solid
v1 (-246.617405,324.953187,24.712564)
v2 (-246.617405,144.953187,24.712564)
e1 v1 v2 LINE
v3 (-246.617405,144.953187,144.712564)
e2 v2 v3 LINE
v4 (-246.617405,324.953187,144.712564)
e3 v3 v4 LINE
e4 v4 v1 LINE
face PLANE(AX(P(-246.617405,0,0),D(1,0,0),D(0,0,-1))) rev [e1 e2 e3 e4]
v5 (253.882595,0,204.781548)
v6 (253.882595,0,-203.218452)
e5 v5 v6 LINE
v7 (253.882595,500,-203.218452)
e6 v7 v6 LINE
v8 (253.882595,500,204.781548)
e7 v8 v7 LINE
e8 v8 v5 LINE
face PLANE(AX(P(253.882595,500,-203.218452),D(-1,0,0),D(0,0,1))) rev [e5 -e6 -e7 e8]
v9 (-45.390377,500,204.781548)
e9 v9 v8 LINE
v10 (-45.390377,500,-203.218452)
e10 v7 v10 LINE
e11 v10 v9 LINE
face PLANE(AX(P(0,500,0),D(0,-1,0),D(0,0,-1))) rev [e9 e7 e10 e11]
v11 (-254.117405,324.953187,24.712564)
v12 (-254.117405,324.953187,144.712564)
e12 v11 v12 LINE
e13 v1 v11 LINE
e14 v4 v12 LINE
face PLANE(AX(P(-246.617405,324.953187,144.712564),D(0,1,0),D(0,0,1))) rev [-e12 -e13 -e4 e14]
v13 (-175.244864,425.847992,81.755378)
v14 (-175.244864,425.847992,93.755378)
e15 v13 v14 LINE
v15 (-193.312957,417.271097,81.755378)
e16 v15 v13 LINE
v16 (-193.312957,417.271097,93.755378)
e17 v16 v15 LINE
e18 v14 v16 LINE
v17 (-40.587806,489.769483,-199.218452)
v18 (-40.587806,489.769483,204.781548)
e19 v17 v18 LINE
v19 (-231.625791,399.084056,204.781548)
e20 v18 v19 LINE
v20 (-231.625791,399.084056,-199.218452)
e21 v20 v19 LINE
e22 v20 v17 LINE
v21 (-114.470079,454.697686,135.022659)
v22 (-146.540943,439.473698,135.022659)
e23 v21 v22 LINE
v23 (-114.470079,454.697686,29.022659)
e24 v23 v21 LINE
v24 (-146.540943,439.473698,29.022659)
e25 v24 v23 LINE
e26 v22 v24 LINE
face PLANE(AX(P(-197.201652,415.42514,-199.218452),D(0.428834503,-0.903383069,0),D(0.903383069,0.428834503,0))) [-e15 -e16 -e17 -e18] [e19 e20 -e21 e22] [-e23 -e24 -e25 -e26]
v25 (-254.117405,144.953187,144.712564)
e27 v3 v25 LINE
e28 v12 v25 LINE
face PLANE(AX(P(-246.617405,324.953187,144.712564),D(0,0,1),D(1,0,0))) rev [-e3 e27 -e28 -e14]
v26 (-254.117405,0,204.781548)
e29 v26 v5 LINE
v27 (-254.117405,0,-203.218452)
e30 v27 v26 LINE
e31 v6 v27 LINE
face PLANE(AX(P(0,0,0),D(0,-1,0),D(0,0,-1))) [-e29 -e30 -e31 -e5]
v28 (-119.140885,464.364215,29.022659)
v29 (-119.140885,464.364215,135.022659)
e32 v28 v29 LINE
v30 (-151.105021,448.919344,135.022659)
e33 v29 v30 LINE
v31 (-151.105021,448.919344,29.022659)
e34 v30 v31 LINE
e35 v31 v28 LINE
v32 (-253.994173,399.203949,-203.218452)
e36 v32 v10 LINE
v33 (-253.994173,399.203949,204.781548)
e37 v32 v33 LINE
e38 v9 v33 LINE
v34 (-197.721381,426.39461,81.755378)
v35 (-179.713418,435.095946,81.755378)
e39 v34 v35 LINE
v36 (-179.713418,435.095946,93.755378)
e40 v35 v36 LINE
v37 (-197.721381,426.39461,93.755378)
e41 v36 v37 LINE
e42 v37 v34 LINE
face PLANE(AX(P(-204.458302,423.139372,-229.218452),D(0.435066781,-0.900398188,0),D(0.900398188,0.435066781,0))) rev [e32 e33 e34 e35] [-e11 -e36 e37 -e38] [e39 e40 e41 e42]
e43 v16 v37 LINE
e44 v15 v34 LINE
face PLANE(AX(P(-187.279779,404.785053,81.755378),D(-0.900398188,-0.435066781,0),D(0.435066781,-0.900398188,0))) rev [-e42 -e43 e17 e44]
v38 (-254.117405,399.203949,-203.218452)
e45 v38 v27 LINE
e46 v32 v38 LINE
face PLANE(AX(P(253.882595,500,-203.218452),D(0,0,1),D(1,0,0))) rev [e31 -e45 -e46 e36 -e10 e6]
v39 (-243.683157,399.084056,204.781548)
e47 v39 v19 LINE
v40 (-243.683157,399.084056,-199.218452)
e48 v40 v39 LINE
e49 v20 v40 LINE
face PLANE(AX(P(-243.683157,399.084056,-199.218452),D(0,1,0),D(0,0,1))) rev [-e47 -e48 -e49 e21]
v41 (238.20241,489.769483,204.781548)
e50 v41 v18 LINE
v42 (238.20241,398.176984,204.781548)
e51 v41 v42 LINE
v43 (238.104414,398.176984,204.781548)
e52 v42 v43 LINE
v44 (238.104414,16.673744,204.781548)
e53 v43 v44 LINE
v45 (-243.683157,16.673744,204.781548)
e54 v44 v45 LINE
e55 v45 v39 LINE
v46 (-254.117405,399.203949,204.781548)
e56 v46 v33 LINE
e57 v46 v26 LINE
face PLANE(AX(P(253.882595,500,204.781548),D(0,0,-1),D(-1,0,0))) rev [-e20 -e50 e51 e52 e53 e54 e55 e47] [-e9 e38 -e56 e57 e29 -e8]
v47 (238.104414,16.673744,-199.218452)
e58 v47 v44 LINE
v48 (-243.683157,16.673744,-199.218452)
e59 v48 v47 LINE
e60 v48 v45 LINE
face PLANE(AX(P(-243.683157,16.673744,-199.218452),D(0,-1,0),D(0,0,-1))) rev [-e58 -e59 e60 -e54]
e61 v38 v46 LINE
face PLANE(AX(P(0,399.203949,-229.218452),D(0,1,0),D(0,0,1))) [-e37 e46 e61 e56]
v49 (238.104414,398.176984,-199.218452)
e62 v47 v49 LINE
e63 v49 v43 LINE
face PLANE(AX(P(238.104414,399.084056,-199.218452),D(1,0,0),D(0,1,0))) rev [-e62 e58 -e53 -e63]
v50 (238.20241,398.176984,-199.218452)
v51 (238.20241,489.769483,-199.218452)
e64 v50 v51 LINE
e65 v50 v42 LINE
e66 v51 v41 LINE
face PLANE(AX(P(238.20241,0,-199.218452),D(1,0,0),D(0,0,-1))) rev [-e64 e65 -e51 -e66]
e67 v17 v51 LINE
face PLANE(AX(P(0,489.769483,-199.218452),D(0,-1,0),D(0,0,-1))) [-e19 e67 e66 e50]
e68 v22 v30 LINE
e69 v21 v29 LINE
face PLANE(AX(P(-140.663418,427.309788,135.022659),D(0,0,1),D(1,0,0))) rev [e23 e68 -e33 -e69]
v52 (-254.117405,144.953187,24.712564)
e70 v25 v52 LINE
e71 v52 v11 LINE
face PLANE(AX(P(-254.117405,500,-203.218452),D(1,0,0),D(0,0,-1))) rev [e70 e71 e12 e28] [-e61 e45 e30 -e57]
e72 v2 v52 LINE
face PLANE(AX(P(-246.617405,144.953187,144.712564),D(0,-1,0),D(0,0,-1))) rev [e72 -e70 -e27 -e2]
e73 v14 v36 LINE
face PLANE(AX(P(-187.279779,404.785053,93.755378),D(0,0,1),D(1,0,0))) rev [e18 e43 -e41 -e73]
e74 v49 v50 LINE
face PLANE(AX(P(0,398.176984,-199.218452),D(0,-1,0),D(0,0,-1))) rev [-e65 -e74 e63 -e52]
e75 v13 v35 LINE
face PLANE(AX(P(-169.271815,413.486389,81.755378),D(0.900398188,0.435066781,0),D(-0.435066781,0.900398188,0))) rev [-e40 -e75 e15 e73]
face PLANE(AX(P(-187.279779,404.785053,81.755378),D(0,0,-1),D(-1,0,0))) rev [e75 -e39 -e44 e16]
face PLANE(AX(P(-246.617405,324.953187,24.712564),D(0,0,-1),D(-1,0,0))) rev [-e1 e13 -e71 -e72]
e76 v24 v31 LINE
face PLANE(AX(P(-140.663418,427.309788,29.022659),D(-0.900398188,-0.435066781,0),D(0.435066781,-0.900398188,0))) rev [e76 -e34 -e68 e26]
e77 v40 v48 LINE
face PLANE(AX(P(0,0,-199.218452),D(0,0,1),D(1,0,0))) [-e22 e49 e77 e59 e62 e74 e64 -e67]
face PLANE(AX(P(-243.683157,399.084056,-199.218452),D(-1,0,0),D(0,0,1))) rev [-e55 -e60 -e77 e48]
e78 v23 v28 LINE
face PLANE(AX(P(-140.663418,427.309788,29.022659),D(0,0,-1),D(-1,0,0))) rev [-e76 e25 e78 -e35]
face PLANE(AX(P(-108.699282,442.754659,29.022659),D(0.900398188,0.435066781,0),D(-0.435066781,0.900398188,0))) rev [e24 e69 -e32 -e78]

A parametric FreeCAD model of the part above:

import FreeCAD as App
import Part
import Sketcher
Q = App.Units.Quantity


def add_polygon(sketch, points):
    """Adds a closed chain of lines whose ends are joined by coincident constraints."""
    first, n = sketch.GeometryCount, len(points)
    for a, b in zip(points, points[1:] + points[:1]):
        sketch.addGeometry(Part.LineSegment(App.Vector(*a, 0), App.Vector(*b, 0)), False)
    for i in range(n):
        sketch.addConstraint(Sketcher.Constraint("Coincident", first + i, 2, first + (i + 1) % n, 1))

doc = App.newDocument("Part")
body = doc.addObject("PartDesign::Body", "Body")

sketch1 = doc.addObject("Sketcher::SketchObject", "Sketch")
body.addObject(sketch1)
sketch1.AttachmentSupport = (doc.XZ_Plane, [""])
sketch1.MapMode = "FlatFace"
add_polygon(sketch1, [(-254, -203), (-254, 205), (254, 205), (254, -203)])
add_polygon(sketch1, [(250, 201), (-250, 201), (-250, -199), (250, -199)])
sketch1.addConstraint([
    Sketcher.Constraint("Vertical", 0),
    Sketcher.Constraint("Horizontal", 1),
    Sketcher.Constraint("Vertical", 2),
    Sketcher.Constraint("Horizontal", 3),
    Sketcher.Constraint("Horizontal", 4),
    Sketcher.Constraint("Vertical", 5),
    Sketcher.Constraint("Horizontal", 6),
    Sketcher.Constraint("Vertical", 7),
    Sketcher.Constraint("DistanceX", 1, 1, 1, 2, Q("508 mm")),
    Sketcher.Constraint("DistanceX", 4, 2, 4, 1, Q("500 mm")),
    Sketcher.Constraint("DistanceY", 0, 1, 0, 2, Q("408 mm")),
    Sketcher.Constraint("DistanceY", 5, 2, 5, 1, Q("400 mm")),
    Sketcher.Constraint("DistanceX", 0, 2, 4, 2, Q("4 mm")),
    Sketcher.Constraint("DistanceY", 4, 2, 0, 2, Q("4 mm")),
    Sketcher.Constraint("DistanceX", 0, 2, -1, 1, Q("254.117405 mm")),
    Sketcher.Constraint("DistanceY", -1, 1, 0, 2, Q("204.781548 mm")),
])
pad1 = doc.addObject("PartDesign::Pad", "Pad")
body.addObject(pad1)
pad1.Profile = sketch1
pad1.Length = 500
pad1.Reversed = True

sketch2 = doc.addObject("Sketcher::SketchObject", "Sketch001")
body.addObject(sketch2)
sketch2.AttachmentSupport = (doc.XZ_Plane, [""])
sketch2.MapMode = "FlatFace"
add_polygon(sketch2, [(-250, -199), (-250, 201), (250, 201), (250, -199)])
sketch2.addConstraint([
    Sketcher.Constraint("Vertical", 0),
    Sketcher.Constraint("Horizontal", 1),
    Sketcher.Constraint("Vertical", 2),
    Sketcher.Constraint("Horizontal", 3),
    Sketcher.Constraint("DistanceX", 1, 1, 1, 2, Q("500 mm")),
    Sketcher.Constraint("DistanceY", 0, 1, 0, 2, Q("400 mm")),
    Sketcher.Constraint("DistanceX", 0, 2, -1, 1, Q("250.117405 mm")),
    Sketcher.Constraint("DistanceY", -1, 1, 0, 2, Q("200.781548 mm")),
])
pad2 = doc.addObject("PartDesign::Pad", "Pad001")
body.addObject(pad2)
pad2.Profile = sketch2
pad2.Length = 500
pad2.Reversed = True

sketch3 = doc.addObject("Sketcher::SketchObject", "Sketch002")
body.addObject(sketch3)
sketch3.AttachmentSupport = (doc.YZ_Plane, [""])
sketch3.MapMode = "FlatFace"
sketch3.AttachmentOffset = App.Placement(App.Vector(0, 0, -254.117405), App.Rotation())
add_polygon(sketch3, [(325, 25), (145, 25), (145, 145), (325, 145)])
sketch3.addConstraint([
    Sketcher.Constraint("Horizontal", 0),
    Sketcher.Constraint("Vertical", 1),
    Sketcher.Constraint("Horizontal", 2),
    Sketcher.Constraint("Vertical", 3),
    Sketcher.Constraint("DistanceX", 0, 2, 0, 1, Q("180 mm")),
    Sketcher.Constraint("DistanceY", 1, 1, 1, 2, Q("120 mm")),
    Sketcher.Constraint("DistanceX", -1, 1, 0, 2, Q("144.953187 mm")),
    Sketcher.Constraint("DistanceY", -1, 1, 0, 2, Q("24.712564 mm")),
])
pocket1 = doc.addObject("PartDesign::Pocket", "Pocket")
body.addObject(pocket1)
pocket1.Profile = sketch3
pocket1.Length = 15
pocket1.Midplane = True

sketch4 = doc.addObject("Sketcher::SketchObject", "Sketch003")
body.addObject(sketch4)
sketch4.AttachmentSupport = (doc.XY_Plane, [""])
sketch4.MapMode = "FlatFace"
sketch4.AttachmentOffset = App.Placement(App.Vector(0, 0, 204.781548), App.Rotation())
add_polygon(sketch4, [(-244, 399), (-244, 17), (238, 17), (238, 399)])
sketch4.addConstraint([
    Sketcher.Constraint("Vertical", 0),
    Sketcher.Constraint("Horizontal", 1),
    Sketcher.Constraint("Vertical", 2),
    Sketcher.Constraint("Horizontal", 3),
    Sketcher.Constraint("DistanceX", 1, 1, 1, 2, Q("481.787571 mm")),
    Sketcher.Constraint("DistanceY", 0, 2, 0, 1, Q("382.410312 mm")),
    Sketcher.Constraint("DistanceX", 0, 2, -1, 1, Q("243.683157 mm")),
    Sketcher.Constraint("DistanceY", -1, 1, 0, 2, Q("16.673744 mm")),
])
pocket2 = doc.addObject("PartDesign::Pocket", "Pocket001")
body.addObject(pocket2)
pocket2.Profile = sketch4
pocket2.Length = 808
pocket2.Midplane = True

sketch5 = doc.addObject("Sketcher::SketchObject", "Sketch004")
body.addObject(sketch5)
sketch5.AttachmentSupport = (doc.XY_Plane, [""])
sketch5.MapMode = "FlatFace"
sketch5.AttachmentOffset = App.Placement(App.Vector(0, 0, 204.781548), App.Rotation())
add_polygon(sketch5, [(-254.12, 399.2), (-253.99, 399.2), (-45.39, 500), (-254.12, 500)])
sketch5.addConstraint([
    Sketcher.Constraint("Horizontal", 0),
    Sketcher.Constraint("Horizontal", 2),
    Sketcher.Constraint("Vertical", 3),
    Sketcher.Constraint("DistanceY", -1, 1, 1, 2, Q("500 mm")),
    Sketcher.Constraint("DistanceX", 2, 2, 2, 1, Q("208.727029 mm")),
    Sketcher.Constraint("DistanceY", 3, 2, 3, 1, Q("100.796051 mm")),
    Sketcher.Constraint("DistanceX", 0, 1, 0, 2, Q("0.123233 mm")),
    Sketcher.Constraint("DistanceX", 0, 2, -1, 1, Q("253.994173 mm")),
])
pocket3 = doc.addObject("PartDesign::Pocket", "Pocket002")
body.addObject(pocket3)
pocket3.Profile = sketch5
pocket3.Length = 868
pocket3.Midplane = True

sketch6 = doc.addObject("Sketcher::SketchObject", "Sketch005")
body.addObject(sketch6)
sketch6.AttachmentSupport = (doc.XY_Plane, [""])
sketch6.MapMode = "FlatFace"
sketch6.AttachmentOffset = App.Placement(App.Vector(0, 0, 204.781548), App.Rotation())
add_polygon(sketch6, [(-40.59, 489.77), (-231.63, 399.08), (238.1, 399.08), (238.1, 398.18), (238.2, 398.18), (238.2, 489.77)])
sketch6.addConstraint([
    Sketcher.Constraint("Horizontal", 1),
    Sketcher.Constraint("Vertical", 2),
    Sketcher.Constraint("Horizontal", 3),
    Sketcher.Constraint("Vertical", 4),
    Sketcher.Constraint("Horizontal", 5),
    Sketcher.Constraint("DistanceY", 4, 1, 4, 2, Q("91.592499 mm")),
    Sketcher.Constraint("DistanceY", 2, 2, 2, 1, Q("0.907072 mm")),
    Sketcher.Constraint("DistanceX", 0, 2, 3, 2, Q("469.828201 mm")),
    Sketcher.Constraint("Distance", 0, Q("211.469522 mm")),
    Sketcher.Constraint("DistanceX", 1, 1, 1, 2, Q("469.730206 mm")),
    Sketcher.Constraint("DistanceX", 0, 2, -1, 1, Q("231.625791 mm")),
    Sketcher.Constraint("DistanceY", -1, 1, 0, 2, Q("399.084056 mm")),
])
pocket4 = doc.addObject("PartDesign::Pocket", "Pocket003")
body.addObject(pocket4)
pocket4.Profile = sketch6
pocket4.Length = 808
pocket4.Midplane = True

sketch7 = doc.addObject("Sketcher::SketchObject", "Sketch006")
body.addObject(sketch7)
sketch7.Placement = App.Placement(App.Vector(-204.458302, 423.139372, 0), App.Rotation(App.Vector(0.900398188, 0.435066781, 0), App.Vector(0, 0, -1.000000001), App.Vector(-0.435066781, 0.900398188, 0), "ZXY"))
add_polygon(sketch7, [(7, -82), (7, -94), (27, -94), (27, -82)])
add_polygon(sketch7, [(59, -29), (59, -135), (95, -135), (95, -29)])
sketch7.addConstraint([
    Sketcher.Constraint("Vertical", 0),
    Sketcher.Constraint("Horizontal", 1),
    Sketcher.Constraint("Vertical", 2),
    Sketcher.Constraint("Horizontal", 3),
    Sketcher.Constraint("Vertical", 4),
    Sketcher.Constraint("Horizontal", 5),
    Sketcher.Constraint("Vertical", 6),
    Sketcher.Constraint("Horizontal", 7),
    Sketcher.Constraint("DistanceX", 1, 1, 1, 2, Q("20 mm")),
    Sketcher.Constraint("DistanceY", 0, 2, 0, 1, Q("12 mm")),
    Sketcher.Constraint("DistanceY", 4, 2, 4, 1, Q("106 mm")),
    Sketcher.Constraint("DistanceX", 5, 1, 5, 2, Q("35.5 mm")),
    Sketcher.Constraint("DistanceY", 4, 2, -1, 1, Q("135.022659 mm")),
    Sketcher.Constraint("DistanceX", 1, 2, 4, 2, Q("31.77305 mm")),
    Sketcher.Constraint("DistanceY", 4, 2, 1, 2, Q("41.267281 mm")),
    Sketcher.Constraint("DistanceX", -1, 1, 0, 2, Q("7.482157 mm")),
])
pocket5 = doc.addObject("PartDesign::Pocket", "Pocket004")
body.addObject(pocket5)
pocket5.Profile = sketch7
pocket5.Length = 48
pocket5.Midplane = True

doc.recompute()
